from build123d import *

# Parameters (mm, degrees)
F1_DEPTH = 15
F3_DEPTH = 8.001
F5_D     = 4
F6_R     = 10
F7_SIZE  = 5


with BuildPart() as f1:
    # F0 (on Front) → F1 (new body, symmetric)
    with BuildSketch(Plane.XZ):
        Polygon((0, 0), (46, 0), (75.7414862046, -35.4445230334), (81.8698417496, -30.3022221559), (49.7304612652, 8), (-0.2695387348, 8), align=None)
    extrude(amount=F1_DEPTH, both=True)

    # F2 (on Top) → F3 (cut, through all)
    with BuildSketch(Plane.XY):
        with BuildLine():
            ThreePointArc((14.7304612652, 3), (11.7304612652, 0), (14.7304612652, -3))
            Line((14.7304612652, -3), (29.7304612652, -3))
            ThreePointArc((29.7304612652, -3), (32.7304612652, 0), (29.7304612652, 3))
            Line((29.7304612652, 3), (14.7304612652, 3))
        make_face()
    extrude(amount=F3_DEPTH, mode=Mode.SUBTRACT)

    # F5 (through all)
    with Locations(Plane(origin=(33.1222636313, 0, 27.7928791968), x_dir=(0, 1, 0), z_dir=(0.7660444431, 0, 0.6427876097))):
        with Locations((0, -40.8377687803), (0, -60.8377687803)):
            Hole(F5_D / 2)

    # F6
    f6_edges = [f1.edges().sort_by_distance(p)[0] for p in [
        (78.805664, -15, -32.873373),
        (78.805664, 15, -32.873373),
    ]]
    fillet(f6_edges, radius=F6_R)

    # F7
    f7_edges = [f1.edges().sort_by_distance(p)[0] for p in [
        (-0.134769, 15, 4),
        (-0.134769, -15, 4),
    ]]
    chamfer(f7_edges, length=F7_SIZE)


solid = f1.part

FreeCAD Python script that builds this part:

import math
import FreeCAD as App
import Part
import Sketcher
from FreeCAD import Vector
Q = App.Units.Quantity


def edges_at(feature, points):
    """Names of the edges that pass closest to the given points."""
    edges = feature.Shape.Edges
    near = lambda p: min(range(len(edges)), key=lambda i: edges[i].distToShape(Part.Vertex(*p))[0])
    return sorted({f"Edge{near(p) + 1}" for p in points})


def add_polygon(sketch, points):
    """Adds a closed chain of lines whose ends are joined by coincident constraints."""
    first, n = sketch.GeometryCount, len(points)
    for a, b in zip(points, points[1:] + points[:1]):
        sketch.addGeometry(Part.LineSegment(App.Vector(*a, 0), App.Vector(*b, 0)), False)
    for i in range(n):
        sketch.addConstraint(Sketcher.Constraint("Coincident", first + i, 2, first + (i + 1) % n, 1))

doc = App.newDocument("Part")
body = doc.addObject("PartDesign::Body", "Body")

sketch1 = body.newObject("Sketcher::SketchObject", "Sketch")
sketch1.AttachmentSupport = (doc.getObject("XZ_Plane"), [""])
sketch1.MapMode = "FlatFace"
add_polygon(sketch1, [(0, 0), (46, 0), (75.741486, -35.444523), (81.869842, -30.302222), (49.730461, 8), (-0.269539, 8)])
sketch1.addConstraint([
    Sketcher.Constraint("Horizontal", 0),
    Sketcher.Constraint("Horizontal", 4),
    Sketcher.Constraint("Coincident", 5, 2, -1, 1),
    Sketcher.Constraint("Perpendicular", 1, 2),
    Sketcher.Constraint("Perpendicular", 2, 3),
    Sketcher.Constraint("DistanceX", 0, 1, 0, 2, 46.0),
    Sketcher.Constraint("DistanceX", 4, 2, 4, 1, 50.0),
    Sketcher.Constraint("Angle", 1, Q("-50 deg")),
    Sketcher.Constraint("Distance", 2, 8.0),
    Sketcher.Constraint("Distance", 3, 50.0),
    Sketcher.Constraint("DistanceY", -1, 1, 3, 2, 8.0),
])
pad1 = body.newObject("PartDesign::Pad", "Pad")
pad1.Profile = sketch1
pad1.Length = 30
pad1.Midplane = True

sketch2 = body.newObject("Sketcher::SketchObject", "Sketch001")
sketch2.AttachmentSupport = (doc.getObject("XY_Plane"), [""])
sketch2.MapMode = "FlatFace"
sketch2.addGeometry([
    Part.ArcOfCircle(Part.Circle(Vector(14.730461, 0, 0), Vector(0, 0, 1), 3), math.radians(90), math.radians(270)),
    Part.LineSegment(Vector(14.730461, -3, 0), Vector(29.730461, -3, 0)),
    Part.ArcOfCircle(Part.Circle(Vector(29.730461, 0, 0), Vector(0, 0, 1), 3), math.radians(-90), math.radians(90)),
    Part.LineSegment(Vector(29.730461, 3, 0), Vector(14.730461, 3, 0)),
], False)
sketch2.addConstraint([
    Sketcher.Constraint("Tangent", 0, 2, 1, 1),
    Sketcher.Constraint("Tangent", 1, 2, 2, 1),
    Sketcher.Constraint("Tangent", 2, 2, 3, 1),
    Sketcher.Constraint("Tangent", 3, 2, 0, 1),
    Sketcher.Constraint("Horizontal", 1),
    Sketcher.Constraint("Horizontal", 3),
    Sketcher.Constraint("PointOnObject", 0, 3, -1),
    Sketcher.Constraint("Radius", 0, 3.0),
    Sketcher.Constraint("DistanceX", 1, 1, 1, 2, 15.0),
    Sketcher.Constraint("DistanceX", -1, 1, 0, 3, 14.730461),
])
pocket1 = body.newObject("PartDesign::Pocket", "Pocket")
pocket1.Profile = sketch2
pocket1.Type = "ThroughAll"
pocket1.Reversed = True

sketch3 = body.newObject("Sketcher::SketchObject", "Sketch002")
sketch3.Placement = App.Placement(Vector(33.122264, 0, 27.792879), App.Rotation(Vector(0, 1, 0), Vector(-0.64278761, 0, 0.766044443), Vector(0.766044443, 0, 0.64278761), "ZXY"))
sketch3.addGeometry([
    Part.Circle(Vector(0, -40.837769, 0), Vector(0, 0, 1), 2),
    Part.Circle(Vector(0, -60.837769, 0), Vector(0, 0, 1), 2),
], False)
sketch3.addConstraint([
    Sketcher.Constraint("Equal", 0, 1),
    Sketcher.Constraint("PointOnObject", 0, 3, -2),
    Sketcher.Constraint("PointOnObject", 1, 3, -2),
    Sketcher.Constraint("Diameter", 0, 4.0),
    Sketcher.Constraint("DistanceY", 1, 3, 0, 3, 20.0),
    Sketcher.Constraint("DistanceY", 0, 3, -1, 1, 40.837769),
])
doc.recompute()
hole = body.newObject("PartDesign::Hole", "Hole")
hole.Profile = sketch3
hole.ThreadType = "None"
hole.Diameter = 4
hole.DepthType = "ThroughAll"
doc.recompute()

fillet = body.newObject("PartDesign::Fillet", "Fillet")
fillet.Base = (hole, edges_at(hole, [(78.806, -15, -32.873), (78.806, 15, -32.873)]))
fillet.Radius = 10
doc.recompute()

chamfer = body.newObject("PartDesign::Chamfer", "Chamfer")
chamfer.Base = (fillet, edges_at(fillet, [(-0.135, 15, 4), (-0.135, -15, 4)]))
chamfer.Size = 5

doc.recompute()
